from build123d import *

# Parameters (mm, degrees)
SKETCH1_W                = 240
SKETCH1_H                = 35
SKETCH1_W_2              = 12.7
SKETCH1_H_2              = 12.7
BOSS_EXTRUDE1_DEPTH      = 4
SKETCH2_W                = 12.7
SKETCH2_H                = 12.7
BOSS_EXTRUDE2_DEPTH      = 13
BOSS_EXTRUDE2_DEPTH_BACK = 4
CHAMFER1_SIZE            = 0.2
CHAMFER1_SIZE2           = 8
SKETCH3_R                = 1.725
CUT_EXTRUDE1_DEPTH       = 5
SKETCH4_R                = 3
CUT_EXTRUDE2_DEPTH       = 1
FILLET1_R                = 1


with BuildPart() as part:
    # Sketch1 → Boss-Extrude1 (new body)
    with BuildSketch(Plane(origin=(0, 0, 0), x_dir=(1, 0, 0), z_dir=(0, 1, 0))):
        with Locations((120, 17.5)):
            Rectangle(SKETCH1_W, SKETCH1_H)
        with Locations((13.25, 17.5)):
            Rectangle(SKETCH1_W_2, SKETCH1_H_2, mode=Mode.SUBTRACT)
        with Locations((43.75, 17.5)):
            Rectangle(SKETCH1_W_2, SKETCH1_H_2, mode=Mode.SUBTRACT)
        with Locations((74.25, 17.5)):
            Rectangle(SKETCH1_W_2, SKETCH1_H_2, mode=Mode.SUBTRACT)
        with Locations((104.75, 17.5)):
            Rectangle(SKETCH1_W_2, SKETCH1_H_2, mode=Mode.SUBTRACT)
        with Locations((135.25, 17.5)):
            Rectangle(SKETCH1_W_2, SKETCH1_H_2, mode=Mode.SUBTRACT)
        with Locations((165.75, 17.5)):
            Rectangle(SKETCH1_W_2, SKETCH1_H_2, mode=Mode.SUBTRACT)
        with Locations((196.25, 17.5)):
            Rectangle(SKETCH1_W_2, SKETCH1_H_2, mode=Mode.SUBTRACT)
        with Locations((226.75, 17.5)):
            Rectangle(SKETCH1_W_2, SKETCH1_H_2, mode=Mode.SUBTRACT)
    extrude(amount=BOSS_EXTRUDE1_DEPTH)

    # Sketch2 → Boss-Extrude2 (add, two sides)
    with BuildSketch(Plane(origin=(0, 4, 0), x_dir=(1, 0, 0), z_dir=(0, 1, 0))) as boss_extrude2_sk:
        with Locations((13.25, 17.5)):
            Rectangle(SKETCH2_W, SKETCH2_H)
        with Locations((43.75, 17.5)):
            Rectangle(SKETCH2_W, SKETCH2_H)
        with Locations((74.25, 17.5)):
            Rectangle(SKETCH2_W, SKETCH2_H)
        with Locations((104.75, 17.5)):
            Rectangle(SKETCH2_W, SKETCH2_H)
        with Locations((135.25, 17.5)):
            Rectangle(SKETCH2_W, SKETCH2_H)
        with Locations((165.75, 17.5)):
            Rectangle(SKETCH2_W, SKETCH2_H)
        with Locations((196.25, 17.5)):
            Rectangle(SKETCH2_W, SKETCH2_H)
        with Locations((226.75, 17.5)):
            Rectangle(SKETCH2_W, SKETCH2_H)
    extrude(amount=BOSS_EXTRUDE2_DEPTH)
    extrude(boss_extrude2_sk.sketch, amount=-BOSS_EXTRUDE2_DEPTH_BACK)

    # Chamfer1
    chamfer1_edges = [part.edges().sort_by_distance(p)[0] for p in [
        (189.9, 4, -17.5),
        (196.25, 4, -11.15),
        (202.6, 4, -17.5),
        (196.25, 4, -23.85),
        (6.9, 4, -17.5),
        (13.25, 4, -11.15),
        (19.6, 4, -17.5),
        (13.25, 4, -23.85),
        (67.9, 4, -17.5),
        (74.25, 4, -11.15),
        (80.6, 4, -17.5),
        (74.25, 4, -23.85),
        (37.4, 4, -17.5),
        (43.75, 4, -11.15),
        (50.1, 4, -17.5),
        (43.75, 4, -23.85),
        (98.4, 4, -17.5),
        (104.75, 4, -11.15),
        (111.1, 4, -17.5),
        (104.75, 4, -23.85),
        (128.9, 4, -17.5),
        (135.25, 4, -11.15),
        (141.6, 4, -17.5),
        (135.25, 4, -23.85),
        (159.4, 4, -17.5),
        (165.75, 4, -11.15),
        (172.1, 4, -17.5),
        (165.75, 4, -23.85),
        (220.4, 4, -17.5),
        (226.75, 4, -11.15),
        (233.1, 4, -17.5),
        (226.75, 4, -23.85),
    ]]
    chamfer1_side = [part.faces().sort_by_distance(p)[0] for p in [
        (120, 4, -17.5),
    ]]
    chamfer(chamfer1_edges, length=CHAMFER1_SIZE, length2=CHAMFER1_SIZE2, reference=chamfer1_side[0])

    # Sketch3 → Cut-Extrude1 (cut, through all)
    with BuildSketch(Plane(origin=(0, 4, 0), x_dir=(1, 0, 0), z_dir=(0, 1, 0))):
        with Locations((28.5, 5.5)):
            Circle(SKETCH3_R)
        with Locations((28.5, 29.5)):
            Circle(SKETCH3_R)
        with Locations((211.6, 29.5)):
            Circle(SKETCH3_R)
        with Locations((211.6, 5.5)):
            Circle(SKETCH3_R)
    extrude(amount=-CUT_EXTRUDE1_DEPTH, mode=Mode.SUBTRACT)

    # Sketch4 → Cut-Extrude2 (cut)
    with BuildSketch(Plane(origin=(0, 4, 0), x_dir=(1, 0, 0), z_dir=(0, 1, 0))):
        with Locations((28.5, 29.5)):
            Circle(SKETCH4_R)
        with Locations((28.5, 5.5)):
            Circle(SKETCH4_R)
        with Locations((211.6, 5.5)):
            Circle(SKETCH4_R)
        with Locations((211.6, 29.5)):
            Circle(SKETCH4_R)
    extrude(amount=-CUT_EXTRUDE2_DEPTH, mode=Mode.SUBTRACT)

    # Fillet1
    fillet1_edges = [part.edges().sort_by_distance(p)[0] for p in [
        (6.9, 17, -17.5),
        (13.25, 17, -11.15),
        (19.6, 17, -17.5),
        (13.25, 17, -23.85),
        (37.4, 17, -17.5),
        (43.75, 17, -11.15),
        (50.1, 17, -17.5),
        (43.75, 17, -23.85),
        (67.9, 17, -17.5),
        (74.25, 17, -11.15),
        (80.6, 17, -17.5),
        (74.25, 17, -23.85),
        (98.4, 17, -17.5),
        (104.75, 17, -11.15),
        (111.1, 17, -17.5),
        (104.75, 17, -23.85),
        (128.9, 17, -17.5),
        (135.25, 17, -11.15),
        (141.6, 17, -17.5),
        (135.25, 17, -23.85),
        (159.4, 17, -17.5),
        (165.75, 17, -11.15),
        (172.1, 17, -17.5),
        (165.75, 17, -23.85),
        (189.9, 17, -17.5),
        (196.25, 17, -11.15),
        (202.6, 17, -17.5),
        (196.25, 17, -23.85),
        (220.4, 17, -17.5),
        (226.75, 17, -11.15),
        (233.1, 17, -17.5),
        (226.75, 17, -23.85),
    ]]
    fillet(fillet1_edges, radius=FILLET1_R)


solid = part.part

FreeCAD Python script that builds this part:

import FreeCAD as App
import Part
import Sketcher

V = App.Vector
Q = App.Units.Quantity


def edges_at(feature, points):
    """Names of the edges that pass closest to the given points."""
    edges = feature.Shape.Edges
    near = lambda p: min(range(len(edges)), key=lambda i: edges[i].distToShape(Part.Vertex(*p))[0])
    return sorted({f"Edge{near(p) + 1}" for p in points})


def add_polygon(sketch, points):
    """Adds a closed chain of lines whose ends are joined by coincident constraints."""
    first, n = sketch.GeometryCount, len(points)
    for a, b in zip(points, points[1:] + points[:1]):
        sketch.addGeometry(Part.LineSegment(App.Vector(*a, 0), App.Vector(*b, 0)), False)
    for i in range(n):
        sketch.addConstraint(Sketcher.Constraint("Coincident", first + i, 2, first + (i + 1) % n, 1))

doc = App.newDocument("Part")
body = doc.addObject("PartDesign::Body", "Body")

# Sketch on XZ plane
sketch1 = body.newObject("Sketcher::SketchObject", "Sketch")
sketch1.AttachmentSupport = (doc.getObject("XZ_Plane"), [""])
sketch1.MapMode = "FlatFace"
add_polygon(sketch1, [(0, -35), (0, 0), (240, 0), (240, -35)])  # lines 0-3
add_polygon(sketch1, [(20, -11), (7, -11), (7, -24), (20, -24)])  # lines 4-7
add_polygon(sketch1, [(50, -11), (37, -11), (37, -24), (50, -24)])  # lines 8-11
add_polygon(sketch1, [(81, -11), (68, -11), (68, -24), (81, -24)])  # lines 12-15
add_polygon(sketch1, [(111, -11), (98, -11), (98, -24), (111, -24)])  # lines 16-19
add_polygon(sketch1, [(142, -11), (129, -11), (129, -24), (142, -24)])  # lines 20-23
add_polygon(sketch1, [(172, -11), (159, -11), (159, -24), (172, -24)])  # lines 24-27
add_polygon(sketch1, [(203, -11), (190, -11), (190, -24), (203, -24)])  # lines 28-31
add_polygon(sketch1, [(233, -11), (220, -11), (220, -24), (233, -24)])  # lines 32-35
sketch1.addConstraint(Sketcher.Constraint("Vertical", 0))
sketch1.addConstraint(Sketcher.Constraint("Horizontal", 1))
sketch1.addConstraint(Sketcher.Constraint("Vertical", 2))
sketch1.addConstraint(Sketcher.Constraint("Horizontal", 3))
sketch1.addConstraint(Sketcher.Constraint("Horizontal", 4))
sketch1.addConstraint(Sketcher.Constraint("Vertical", 5))
sketch1.addConstraint(Sketcher.Constraint("Horizontal", 6))
sketch1.addConstraint(Sketcher.Constraint("Vertical", 7))
sketch1.addConstraint(Sketcher.Constraint("Horizontal", 8))
sketch1.addConstraint(Sketcher.Constraint("Vertical", 9))
sketch1.addConstraint(Sketcher.Constraint("Horizontal", 10))
sketch1.addConstraint(Sketcher.Constraint("Vertical", 11))
sketch1.addConstraint(Sketcher.Constraint("Horizontal", 12))
sketch1.addConstraint(Sketcher.Constraint("Vertical", 13))
sketch1.addConstraint(Sketcher.Constraint("Horizontal", 14))
sketch1.addConstraint(Sketcher.Constraint("Vertical", 15))
sketch1.addConstraint(Sketcher.Constraint("Horizontal", 16))
sketch1.addConstraint(Sketcher.Constraint("Vertical", 17))
sketch1.addConstraint(Sketcher.Constraint("Horizontal", 18))
sketch1.addConstraint(Sketcher.Constraint("Vertical", 19))
sketch1.addConstraint(Sketcher.Constraint("Horizontal", 20))
sketch1.addConstraint(Sketcher.Constraint("Vertical", 21))
sketch1.addConstraint(Sketcher.Constraint("Horizontal", 22))
sketch1.addConstraint(Sketcher.Constraint("Vertical", 23))
sketch1.addConstraint(Sketcher.Constraint("Horizontal", 24))
sketch1.addConstraint(Sketcher.Constraint("Vertical", 25))
sketch1.addConstraint(Sketcher.Constraint("Horizontal", 26))
sketch1.addConstraint(Sketcher.Constraint("Vertical", 27))
sketch1.addConstraint(Sketcher.Constraint("Horizontal", 28))
sketch1.addConstraint(Sketcher.Constraint("Vertical", 29))
sketch1.addConstraint(Sketcher.Constraint("Horizontal", 30))
sketch1.addConstraint(Sketcher.Constraint("Vertical", 31))
sketch1.addConstraint(Sketcher.Constraint("Horizontal", 32))
sketch1.addConstraint(Sketcher.Constraint("Vertical", 33))
sketch1.addConstraint(Sketcher.Constraint("Horizontal", 34))
sketch1.addConstraint(Sketcher.Constraint("Vertical", 35))
sketch1.addConstraint(Sketcher.Constraint("Coincident", 0, 2, -1, 1))
sketch1.addConstraint(Sketcher.Constraint("Horizontal", 7, 2, 8, 2))
sketch1.addConstraint(Sketcher.Constraint("Horizontal", 6, 2, 9, 2))
sketch1.addConstraint(Sketcher.Constraint("Horizontal", 11, 2, 12, 2))
sketch1.addConstraint(Sketcher.Constraint("Horizontal", 10, 2, 13, 2))
sketch1.addConstraint(Sketcher.Constraint("Horizontal", 15, 2, 16, 2))
sketch1.addConstraint(Sketcher.Constraint("Horizontal", 14, 2, 17, 2))
sketch1.addConstraint(Sketcher.Constraint("Horizontal", 19, 2, 20, 2))
sketch1.addConstraint(Sketcher.Constraint("Horizontal", 18, 2, 21, 2))
sketch1.addConstraint(Sketcher.Constraint("Horizontal", 23, 2, 24, 2))
sketch1.addConstraint(Sketcher.Constraint("Horizontal", 22, 2, 25, 2))
sketch1.addConstraint(Sketcher.Constraint("Horizontal", 27, 2, 28, 2))
sketch1.addConstraint(Sketcher.Constraint("Horizontal", 26, 2, 29, 2))
sketch1.addConstraint(Sketcher.Constraint("Horizontal", 31, 2, 32, 2))
sketch1.addConstraint(Sketcher.Constraint("Horizontal", 30, 2, 33, 2))
sketch1.addConstraint(Sketcher.Constraint("Equal", 6, 8))
sketch1.addConstraint(Sketcher.Constraint("Equal", 10, 12))
sketch1.addConstraint(Sketcher.Constraint("Equal", 14, 16))
sketch1.addConstraint(Sketcher.Constraint("Equal", 18, 20))
sketch1.addConstraint(Sketcher.Constraint("Equal", 22, 24))
sketch1.addConstraint(Sketcher.Constraint("Equal", 26, 28))
sketch1.addConstraint(Sketcher.Constraint("Equal", 30, 32))
sketch1.addConstraint(Sketcher.Constraint("Equal", 34, 5))
sketch1.addConstraint(Sketcher.Constraint("DistanceX", 1, 1, 1, 2, Q("240 mm")))
sketch1.addConstraint(Sketcher.Constraint("DistanceY", 0, 1, 0, 2, Q("35 mm")))
sketch1.addConstraint(Sketcher.Constraint("DistanceX", 4, 2, 4, 1, Q("12.7 mm")))
sketch1.addConstraint(Sketcher.Constraint("DistanceX", -1, 1, 4, 2, Q("6.9 mm")))
sketch1.addConstraint(Sketcher.Constraint("DistanceX", -1, 1, 8, 2, Q("37.4 mm")))
sketch1.addConstraint(Sketcher.Constraint("DistanceX", -1, 1, 12, 2, Q("67.9 mm")))
sketch1.addConstraint(Sketcher.Constraint("DistanceX", -1, 1, 16, 2, Q("98.4 mm")))
sketch1.addConstraint(Sketcher.Constraint("DistanceX", -1, 1, 20, 2, Q("128.9 mm")))
sketch1.addConstraint(Sketcher.Constraint("DistanceX", -1, 1, 24, 2, Q("159.4 mm")))
sketch1.addConstraint(Sketcher.Constraint("DistanceX", -1, 1, 28, 2, Q("189.9 mm")))
sketch1.addConstraint(Sketcher.Constraint("DistanceX", -1, 1, 32, 2, Q("220.4 mm")))
sketch1.addConstraint(Sketcher.Constraint("DistanceY", 4, 2, -1, 1, Q("11.15 mm")))
pad1 = body.newObject("PartDesign::Pad", "Pad")
pad1.Profile = sketch1
pad1.Length = 4
pad1.Reversed = True

# Sketch on XZ plane
sketch2 = body.newObject("Sketcher::SketchObject", "Sketch001")
sketch2.AttachmentSupport = (doc.getObject("XZ_Plane"), [""])
sketch2.MapMode = "FlatFace"
sketch2.AttachmentOffset = App.Placement(V(0, 0, -4), App.Rotation())
add_polygon(sketch2, [(7, -24), (7, -11), (20, -11), (20, -24)])  # lines 0-3
add_polygon(sketch2, [(37, -24), (37, -11), (50, -11), (50, -24)])  # lines 4-7
add_polygon(sketch2, [(68, -24), (68, -11), (81, -11), (81, -24)])  # lines 8-11
add_polygon(sketch2, [(98, -24), (98, -11), (111, -11), (111, -24)])  # lines 12-15
add_polygon(sketch2, [(129, -24), (129, -11), (142, -11), (142, -24)])  # lines 16-19
add_polygon(sketch2, [(159, -24), (159, -11), (172, -11), (172, -24)])  # lines 20-23
add_polygon(sketch2, [(190, -24), (190, -11), (203, -11), (203, -24)])  # lines 24-27
add_polygon(sketch2, [(220, -24), (220, -11), (233, -11), (233, -24)])  # lines 28-31
sketch2.addConstraint(Sketcher.Constraint("Vertical", 0))
sketch2.addConstraint(Sketcher.Constraint("Horizontal", 1))
sketch2.addConstraint(Sketcher.Constraint("Vertical", 2))
sketch2.addConstraint(Sketcher.Constraint("Horizontal", 3))
sketch2.addConstraint(Sketcher.Constraint("Vertical", 4))
sketch2.addConstraint(Sketcher.Constraint("Horizontal", 5))
sketch2.addConstraint(Sketcher.Constraint("Vertical", 6))
sketch2.addConstraint(Sketcher.Constraint("Horizontal", 7))
sketch2.addConstraint(Sketcher.Constraint("Vertical", 8))
sketch2.addConstraint(Sketcher.Constraint("Horizontal", 9))
sketch2.addConstraint(Sketcher.Constraint("Vertical", 10))
sketch2.addConstraint(Sketcher.Constraint("Horizontal", 11))
sketch2.addConstraint(Sketcher.Constraint("Vertical", 12))
sketch2.addConstraint(Sketcher.Constraint("Horizontal", 13))
sketch2.addConstraint(Sketcher.Constraint("Vertical", 14))
sketch2.addConstraint(Sketcher.Constraint("Horizontal", 15))
sketch2.addConstraint(Sketcher.Constraint("Vertical", 16))
sketch2.addConstraint(Sketcher.Constraint("Horizontal", 17))
sketch2.addConstraint(Sketcher.Constraint("Vertical", 18))
sketch2.addConstraint(Sketcher.Constraint("Horizontal", 19))
sketch2.addConstraint(Sketcher.Constraint("Vertical", 20))
sketch2.addConstraint(Sketcher.Constraint("Horizontal", 21))
sketch2.addConstraint(Sketcher.Constraint("Vertical", 22))
sketch2.addConstraint(Sketcher.Constraint("Horizontal", 23))
sketch2.addConstraint(Sketcher.Constraint("Vertical", 24))
sketch2.addConstraint(Sketcher.Constraint("Horizontal", 25))
sketch2.addConstraint(Sketcher.Constraint("Vertical", 26))
sketch2.addConstraint(Sketcher.Constraint("Horizontal", 27))
sketch2.addConstraint(Sketcher.Constraint("Vertical", 28))
sketch2.addConstraint(Sketcher.Constraint("Horizontal", 29))
sketch2.addConstraint(Sketcher.Constraint("Vertical", 30))
sketch2.addConstraint(Sketcher.Constraint("Horizontal", 31))
sketch2.addConstraint(Sketcher.Constraint("Horizontal", 1, 2, 4, 2))
sketch2.addConstraint(Sketcher.Constraint("Horizontal", 3, 2, 6, 2))
sketch2.addConstraint(Sketcher.Constraint("Horizontal", 5, 2, 8, 2))
sketch2.addConstraint(Sketcher.Constraint("Horizontal", 7, 2, 10, 2))
sketch2.addConstraint(Sketcher.Constraint("Horizontal", 9, 2, 12, 2))
sketch2.addConstraint(Sketcher.Constraint("Horizontal", 11, 2, 14, 2))
sketch2.addConstraint(Sketcher.Constraint("Horizontal", 13, 2, 16, 2))
sketch2.addConstraint(Sketcher.Constraint("Horizontal", 15, 2, 18, 2))
sketch2.addConstraint(Sketcher.Constraint("Horizontal", 17, 2, 20, 2))
sketch2.addConstraint(Sketcher.Constraint("Horizontal", 19, 2, 22, 2))
sketch2.addConstraint(Sketcher.Constraint("Horizontal", 21, 2, 24, 2))
sketch2.addConstraint(Sketcher.Constraint("Horizontal", 23, 2, 26, 2))
sketch2.addConstraint(Sketcher.Constraint("Horizontal", 25, 2, 28, 2))
sketch2.addConstraint(Sketcher.Constraint("Horizontal", 27, 2, 30, 2))
sketch2.addConstraint(Sketcher.Constraint("Equal", 3, 5))
sketch2.addConstraint(Sketcher.Constraint("Equal", 7, 9))
sketch2.addConstraint(Sketcher.Constraint("Equal", 11, 13))
sketch2.addConstraint(Sketcher.Constraint("Equal", 15, 17))
sketch2.addConstraint(Sketcher.Constraint("Equal", 19, 21))
sketch2.addConstraint(Sketcher.Constraint("Equal", 23, 25))
sketch2.addConstraint(Sketcher.Constraint("Equal", 27, 29))
sketch2.addConstraint(Sketcher.Constraint("Equal", 31, 0))
sketch2.addConstraint(Sketcher.Constraint("DistanceX", 1, 1, 1, 2, Q("12.7 mm")))
sketch2.addConstraint(Sketcher.Constraint("DistanceX", -1, 1, 0, 2, Q("6.9 mm")))
sketch2.addConstraint(Sketcher.Constraint("DistanceX", -1, 1, 4, 2, Q("37.4 mm")))
sketch2.addConstraint(Sketcher.Constraint("DistanceX", -1, 1, 8, 2, Q("67.9 mm")))
sketch2.addConstraint(Sketcher.Constraint("DistanceX", -1, 1, 12, 2, Q("98.4 mm")))
sketch2.addConstraint(Sketcher.Constraint("DistanceX", -1, 1, 16, 2, Q("128.9 mm")))
sketch2.addConstraint(Sketcher.Constraint("DistanceX", -1, 1, 20, 2, Q("159.4 mm")))
sketch2.addConstraint(Sketcher.Constraint("DistanceX", -1, 1, 24, 2, Q("189.9 mm")))
sketch2.addConstraint(Sketcher.Constraint("DistanceX", -1, 1, 28, 2, Q("220.4 mm")))
sketch2.addConstraint(Sketcher.Constraint("DistanceY", 0, 2, -1, 1, Q("11.15 mm")))
pad2 = body.newObject("PartDesign::Pad", "Pad001")
pad2.Profile = sketch2
pad2.Type = "TwoLengths"
pad2.Length = 13
pad2.Length2 = 4
pad2.Reversed = True
doc.recompute()

chamfer = body.newObject("PartDesign::Chamfer", "Chamfer")
chamfer.Base = (pad2, edges_at(pad2, [
    (189.9, 4, -17.5),
    (196.25, 4, -11.15),
    (202.6, 4, -17.5),
    (196.25, 4, -23.85),
    (6.9, 4, -17.5),
    (13.25, 4, -11.15),
    (19.6, 4, -17.5),
    (13.25, 4, -23.85),
    (67.9, 4, -17.5),
    (74.25, 4, -11.15),
    (80.6, 4, -17.5),
    (74.25, 4, -23.85),
    (37.4, 4, -17.5),
    (43.75, 4, -11.15),
    (50.1, 4, -17.5),
    (43.75, 4, -23.85),
    (98.4, 4, -17.5),
    (104.75, 4, -11.15),
    (111.1, 4, -17.5),
    (104.75, 4, -23.85),
    (128.9, 4, -17.5),
    (135.25, 4, -11.15),
    (141.6, 4, -17.5),
    (135.25, 4, -23.85),
    (159.4, 4, -17.5),
    (165.75, 4, -11.15),
    (172.1, 4, -17.5),
    (165.75, 4, -23.85),
    (220.4, 4, -17.5),
    (226.75, 4, -11.15),
    (233.1, 4, -17.5),
    (226.75, 4, -23.85),
]))
chamfer.ChamferType = "Two distances"
chamfer.Size = 0.2
chamfer.Size2 = 8

# Sketch on XZ plane
sketch3 = body.newObject("Sketcher::SketchObject", "Sketch002")
sketch3.AttachmentSupport = (doc.getObject("XZ_Plane"), [""])
sketch3.MapMode = "FlatFace"
sketch3.AttachmentOffset = App.Placement(V(0, 0, -4), App.Rotation())
sketch3.addGeometry(Part.Circle(V(28.5, -5.5, 0), V(0, 0, 1), 1.7), False)
sketch3.addGeometry(Part.Circle(V(28.5, -29.5, 0), V(0, 0, 1), 1.7), False)
sketch3.addGeometry(Part.Circle(V(211.6, -29.5, 0), V(0, 0, 1), 1.7), False)
sketch3.addGeometry(Part.Circle(V(211.6, -5.5, 0), V(0, 0, 1), 1.7), False)
sketch3.addConstraint(Sketcher.Constraint("Equal", 0, 1))
sketch3.addConstraint(Sketcher.Constraint("Equal", 1, 2))
sketch3.addConstraint(Sketcher.Constraint("Equal", 2, 3))
sketch3.addConstraint(Sketcher.Constraint("Horizontal", 1, 3, 2, 3))
sketch3.addConstraint(Sketcher.Constraint("Horizontal", 0, 3, 3, 3))
sketch3.addConstraint(Sketcher.Constraint("Vertical", 0, 3, 1, 3))
sketch3.addConstraint(Sketcher.Constraint("Vertical", 2, 3, 3, 3))
sketch3.addConstraint(Sketcher.Constraint("Diameter", 0, Q("3.45 mm")))
sketch3.addConstraint(Sketcher.Constraint("DistanceY", 1, 3, 0, 3, Q("24 mm")))
sketch3.addConstraint(Sketcher.Constraint("DistanceX", -1, 1, 0, 3, Q("28.5 mm")))
sketch3.addConstraint(Sketcher.Constraint("DistanceY", 0, 3, -1, 1, Q("5.5 mm")))
sketch3.addConstraint(Sketcher.Constraint("DistanceX", -1, 1, 2, 3, Q("211.6 mm")))
pocket1 = body.newObject("PartDesign::Pocket", "Pocket")
pocket1.Profile = sketch3
pocket1.Type = "ThroughAll"
pocket1.Reversed = True

# Sketch on XZ plane
sketch4 = body.newObject("Sketcher::SketchObject", "Sketch003")
sketch4.AttachmentSupport = (doc.getObject("XZ_Plane"), [""])
sketch4.MapMode = "FlatFace"
sketch4.AttachmentOffset = App.Placement(V(0, 0, -4), App.Rotation())
sketch4.addGeometry(Part.Circle(V(28.5, -29.5, 0), V(0, 0, 1), 3), False)
sketch4.addGeometry(Part.Circle(V(28.5, -5.5, 0), V(0, 0, 1), 3), False)
sketch4.addGeometry(Part.Circle(V(211.6, -5.5, 0), V(0, 0, 1), 3), False)
sketch4.addGeometry(Part.Circle(V(211.6, -29.5, 0), V(0, 0, 1), 3), False)
sketch4.addConstraint(Sketcher.Constraint("Equal", 0, 1))
sketch4.addConstraint(Sketcher.Constraint("Equal", 1, 2))
sketch4.addConstraint(Sketcher.Constraint("Equal", 2, 3))
sketch4.addConstraint(Sketcher.Constraint("Horizontal", 1, 3, 2, 3))
sketch4.addConstraint(Sketcher.Constraint("Horizontal", 0, 3, 3, 3))
sketch4.addConstraint(Sketcher.Constraint("Vertical", 0, 3, 1, 3))
sketch4.addConstraint(Sketcher.Constraint("Vertical", 2, 3, 3, 3))
sketch4.addConstraint(Sketcher.Constraint("Diameter", 0, Q("6 mm")))
sketch4.addConstraint(Sketcher.Constraint("DistanceY", 0, 3, 1, 3, Q("24 mm")))
sketch4.addConstraint(Sketcher.Constraint("DistanceX", -1, 1, 0, 3, Q("28.5 mm")))
sketch4.addConstraint(Sketcher.Constraint("DistanceY", 0, 3, -1, 1, Q("29.5 mm")))
sketch4.addConstraint(Sketcher.Constraint("DistanceX", -1, 1, 2, 3, Q("211.6 mm")))
pocket2 = body.newObject("PartDesign::Pocket", "Pocket001")
pocket2.Profile = sketch4
pocket2.Length = 1
pocket2.Reversed = True
doc.recompute()

fillet = body.newObject("PartDesign::Fillet", "Fillet")
fillet.Base = (pocket2, edges_at(pocket2, [
    (6.9, 17, -17.5),
    (13.25, 17, -11.15),
    (19.6, 17, -17.5),
    (13.25, 17, -23.85),
    (37.4, 17, -17.5),
    (43.75, 17, -11.15),
    (50.1, 17, -17.5),
    (43.75, 17, -23.85),
    (67.9, 17, -17.5),
    (74.25, 17, -11.15),
    (80.6, 17, -17.5),
    (74.25, 17, -23.85),
    (98.4, 17, -17.5),
    (104.75, 17, -11.15),
    (111.1, 17, -17.5),
    (104.75, 17, -23.85),
    (128.9, 17, -17.5),
    (135.25, 17, -11.15),
    (141.6, 17, -17.5),
    (135.25, 17, -23.85),
    (159.4, 17, -17.5),
    (165.75, 17, -11.15),
    (172.1, 17, -17.5),
    (165.75, 17, -23.85),
    (189.9, 17, -17.5),
    (196.25, 17, -11.15),
    (202.6, 17, -17.5),
    (196.25, 17, -23.85),
    (220.4, 17, -17.5),
    (226.75, 17, -11.15),
    (233.1, 17, -17.5),
    (226.75, 17, -23.85),
]))
fillet.Radius = 1

doc.recompute()
